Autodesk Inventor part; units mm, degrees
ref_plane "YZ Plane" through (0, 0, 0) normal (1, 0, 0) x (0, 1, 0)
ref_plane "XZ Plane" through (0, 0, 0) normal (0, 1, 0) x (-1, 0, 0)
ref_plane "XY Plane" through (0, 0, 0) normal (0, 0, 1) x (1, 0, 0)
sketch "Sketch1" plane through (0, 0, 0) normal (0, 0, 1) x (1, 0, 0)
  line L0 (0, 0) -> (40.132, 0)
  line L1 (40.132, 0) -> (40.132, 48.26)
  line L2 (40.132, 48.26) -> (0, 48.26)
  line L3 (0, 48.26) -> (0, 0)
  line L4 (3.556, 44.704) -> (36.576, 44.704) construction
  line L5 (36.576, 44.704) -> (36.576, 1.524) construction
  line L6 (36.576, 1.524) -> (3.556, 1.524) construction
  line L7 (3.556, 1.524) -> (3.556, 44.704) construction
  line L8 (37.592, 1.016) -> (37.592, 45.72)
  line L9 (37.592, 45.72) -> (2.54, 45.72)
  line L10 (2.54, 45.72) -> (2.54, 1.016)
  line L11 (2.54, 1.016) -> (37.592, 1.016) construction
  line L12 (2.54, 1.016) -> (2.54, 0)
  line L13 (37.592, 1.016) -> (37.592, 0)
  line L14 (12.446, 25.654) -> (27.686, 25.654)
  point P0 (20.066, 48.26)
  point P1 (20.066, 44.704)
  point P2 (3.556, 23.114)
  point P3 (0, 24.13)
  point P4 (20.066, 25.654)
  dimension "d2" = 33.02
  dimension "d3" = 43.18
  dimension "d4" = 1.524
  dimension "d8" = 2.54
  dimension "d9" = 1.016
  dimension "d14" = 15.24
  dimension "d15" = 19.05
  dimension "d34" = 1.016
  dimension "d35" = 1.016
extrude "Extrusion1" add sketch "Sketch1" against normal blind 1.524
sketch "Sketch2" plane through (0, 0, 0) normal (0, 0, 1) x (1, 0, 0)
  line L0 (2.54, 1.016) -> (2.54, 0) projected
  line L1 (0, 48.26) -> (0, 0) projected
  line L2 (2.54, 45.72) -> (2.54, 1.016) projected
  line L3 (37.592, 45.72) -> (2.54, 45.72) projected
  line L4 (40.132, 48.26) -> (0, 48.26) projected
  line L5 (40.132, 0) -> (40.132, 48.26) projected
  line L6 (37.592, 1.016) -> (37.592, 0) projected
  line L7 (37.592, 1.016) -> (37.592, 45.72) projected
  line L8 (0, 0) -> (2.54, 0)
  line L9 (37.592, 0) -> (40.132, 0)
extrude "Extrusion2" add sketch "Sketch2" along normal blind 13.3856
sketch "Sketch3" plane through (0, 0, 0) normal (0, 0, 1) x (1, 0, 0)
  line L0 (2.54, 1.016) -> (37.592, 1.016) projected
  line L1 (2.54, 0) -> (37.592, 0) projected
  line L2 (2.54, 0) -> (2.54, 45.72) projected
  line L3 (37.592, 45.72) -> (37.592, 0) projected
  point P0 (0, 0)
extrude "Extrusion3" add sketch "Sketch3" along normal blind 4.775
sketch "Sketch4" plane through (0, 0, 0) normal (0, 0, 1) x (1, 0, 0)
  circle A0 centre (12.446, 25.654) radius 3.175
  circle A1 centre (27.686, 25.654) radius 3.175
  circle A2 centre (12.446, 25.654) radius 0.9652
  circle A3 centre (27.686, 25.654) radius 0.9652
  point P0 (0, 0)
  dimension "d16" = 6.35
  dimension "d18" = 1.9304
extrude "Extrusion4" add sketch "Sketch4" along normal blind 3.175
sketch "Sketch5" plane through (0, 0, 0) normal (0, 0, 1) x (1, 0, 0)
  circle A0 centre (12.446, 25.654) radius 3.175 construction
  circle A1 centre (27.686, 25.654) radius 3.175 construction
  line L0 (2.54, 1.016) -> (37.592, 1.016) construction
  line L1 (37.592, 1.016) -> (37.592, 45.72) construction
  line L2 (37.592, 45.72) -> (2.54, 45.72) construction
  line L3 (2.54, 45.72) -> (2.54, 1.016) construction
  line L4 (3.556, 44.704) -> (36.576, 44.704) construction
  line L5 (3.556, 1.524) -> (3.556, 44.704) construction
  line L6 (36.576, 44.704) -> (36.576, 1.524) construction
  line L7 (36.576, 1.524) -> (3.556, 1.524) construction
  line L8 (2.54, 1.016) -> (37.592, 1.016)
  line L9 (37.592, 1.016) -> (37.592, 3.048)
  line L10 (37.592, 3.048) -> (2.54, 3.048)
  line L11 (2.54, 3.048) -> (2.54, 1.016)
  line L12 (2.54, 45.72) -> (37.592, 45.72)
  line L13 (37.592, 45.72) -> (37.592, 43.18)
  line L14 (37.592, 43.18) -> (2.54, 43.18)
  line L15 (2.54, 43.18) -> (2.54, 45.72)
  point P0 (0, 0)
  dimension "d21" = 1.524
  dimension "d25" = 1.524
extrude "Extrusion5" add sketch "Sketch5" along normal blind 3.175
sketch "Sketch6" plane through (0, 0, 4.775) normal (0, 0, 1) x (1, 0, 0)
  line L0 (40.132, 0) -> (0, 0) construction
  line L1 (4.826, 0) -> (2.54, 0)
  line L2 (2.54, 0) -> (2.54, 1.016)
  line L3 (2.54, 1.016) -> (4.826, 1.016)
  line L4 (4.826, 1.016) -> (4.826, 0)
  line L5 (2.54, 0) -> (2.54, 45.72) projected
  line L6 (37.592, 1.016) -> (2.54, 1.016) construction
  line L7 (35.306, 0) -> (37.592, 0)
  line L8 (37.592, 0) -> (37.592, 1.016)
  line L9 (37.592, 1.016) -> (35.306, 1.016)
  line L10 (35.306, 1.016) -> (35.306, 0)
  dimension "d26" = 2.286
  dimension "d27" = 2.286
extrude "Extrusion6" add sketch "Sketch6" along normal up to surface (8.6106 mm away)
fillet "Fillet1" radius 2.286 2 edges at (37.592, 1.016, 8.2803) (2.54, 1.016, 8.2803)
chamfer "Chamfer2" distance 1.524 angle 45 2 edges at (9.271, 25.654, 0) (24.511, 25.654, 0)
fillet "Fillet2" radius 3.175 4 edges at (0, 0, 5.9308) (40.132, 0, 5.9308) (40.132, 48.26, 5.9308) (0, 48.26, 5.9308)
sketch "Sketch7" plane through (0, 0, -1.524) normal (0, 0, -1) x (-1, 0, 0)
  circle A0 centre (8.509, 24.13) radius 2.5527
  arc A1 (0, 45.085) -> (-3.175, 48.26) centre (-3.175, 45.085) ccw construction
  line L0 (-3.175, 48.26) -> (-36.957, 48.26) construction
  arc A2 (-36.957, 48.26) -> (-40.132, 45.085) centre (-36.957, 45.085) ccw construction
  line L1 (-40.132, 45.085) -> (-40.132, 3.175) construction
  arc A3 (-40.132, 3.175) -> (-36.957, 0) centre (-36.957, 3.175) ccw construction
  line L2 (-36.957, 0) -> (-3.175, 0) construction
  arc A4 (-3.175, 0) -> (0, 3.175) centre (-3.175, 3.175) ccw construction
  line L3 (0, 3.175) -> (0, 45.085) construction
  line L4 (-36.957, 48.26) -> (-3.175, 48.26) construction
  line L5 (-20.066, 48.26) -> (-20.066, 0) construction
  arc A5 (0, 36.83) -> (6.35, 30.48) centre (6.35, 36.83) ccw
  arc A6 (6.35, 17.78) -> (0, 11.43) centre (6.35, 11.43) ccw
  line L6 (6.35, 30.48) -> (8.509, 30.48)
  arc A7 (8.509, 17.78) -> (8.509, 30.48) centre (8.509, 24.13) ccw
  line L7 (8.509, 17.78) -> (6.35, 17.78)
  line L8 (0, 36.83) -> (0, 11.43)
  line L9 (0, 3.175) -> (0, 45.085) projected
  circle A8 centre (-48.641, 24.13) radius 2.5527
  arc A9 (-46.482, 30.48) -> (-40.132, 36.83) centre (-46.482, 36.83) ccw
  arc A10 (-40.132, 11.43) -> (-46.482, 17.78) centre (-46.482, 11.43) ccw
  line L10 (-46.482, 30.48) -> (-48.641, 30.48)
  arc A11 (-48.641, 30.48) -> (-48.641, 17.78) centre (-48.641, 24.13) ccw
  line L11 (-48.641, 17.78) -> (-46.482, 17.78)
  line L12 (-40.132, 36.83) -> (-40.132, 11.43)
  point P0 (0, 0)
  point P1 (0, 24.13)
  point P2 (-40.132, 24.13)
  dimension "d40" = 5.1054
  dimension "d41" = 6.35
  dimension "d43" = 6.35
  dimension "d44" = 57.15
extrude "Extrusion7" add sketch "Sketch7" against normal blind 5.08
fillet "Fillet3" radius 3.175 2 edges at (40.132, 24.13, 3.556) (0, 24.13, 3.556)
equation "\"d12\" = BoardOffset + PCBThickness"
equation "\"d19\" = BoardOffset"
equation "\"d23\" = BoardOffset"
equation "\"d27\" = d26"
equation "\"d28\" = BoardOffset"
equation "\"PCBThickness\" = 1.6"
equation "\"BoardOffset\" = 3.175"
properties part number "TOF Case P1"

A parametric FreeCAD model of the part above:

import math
import FreeCAD as App
import Part
import Sketcher

V = App.Vector
Q = App.Units.Quantity


def edges_at(feature, points):
    """Names of the edges that pass closest to the given points."""
    edges = feature.Shape.Edges
    near = lambda p: min(range(len(edges)), key=lambda i: edges[i].distToShape(Part.Vertex(*p))[0])
    return sorted({f"Edge{near(p) + 1}" for p in points})


def add_polygon(sketch, points):
    """Adds a closed chain of lines whose ends are joined by coincident constraints."""
    first, n = sketch.GeometryCount, len(points)
    for a, b in zip(points, points[1:] + points[:1]):
        sketch.addGeometry(Part.LineSegment(App.Vector(*a, 0), App.Vector(*b, 0)), False)
    for i in range(n):
        sketch.addConstraint(Sketcher.Constraint("Coincident", first + i, 2, first + (i + 1) % n, 1))

doc = App.newDocument("Part")
params = doc.addObject("Spreadsheet::Sheet", "Params")
for row, (alias, value) in enumerate([
    ("sketch1_height", "1.9 in"),
    ("sketch1_width", "1.58 in"),
    ("pad1_length", "0.06 in"),
    ("sketch2_width", "0.1 in"),
    ("sketch2_height", "1.8 in"),
    ("sketch2_height2", "1.9 in"),
    ("sketch2_width2", "1.38 in"),
    ("pad2_length", "0.5269921 in"),
    ("sketch3_width", "1.38 in"),
    ("sketch3_height", "0.04 in"),
    ("pad3_length", "0.1879921 in"),
    ("sketch4_diameter", "0.25 in"),
    ("sketch4_diameter2", "0.076 in"),
    ("pad4_length", "0.125 in"),
    ("sketch5_height", "0.1 in"),
    ("sketch5_width", "1.38 in"),
    ("sketch5_height2", "0.08 in"),
    ("pad5_length", "0.125 in"),
    ("sketch6_width", "0.09 in"),
    ("sketch6_height", "0.04 in"),
    ("pad6_length", "0.339 in"),
    ("fillet_radius", "0.09 in"),
    ("chamfer_size", "0.06 in"),
    ("fillet2_radius", "0.125 in"),
    ("sketch7_radius", "0.25 in"),
    ("sketch7_diameter", "0.201 in"),
    ("sketch7_width", "0.085 in"),
    ("pad7_length", "0.2 in"),
    ("fillet3_radius", "0.125 in"),
], start=1):
    params.set(f"A{row}", alias)
    params.set(f"B{row}", "=" + value)
    params.setAlias(f"B{row}", alias)

body = doc.addObject("PartDesign::Body", "Body")

# Sketch on XY plane
sketch1 = body.newObject("Sketcher::SketchObject", "Sketch")
sketch1.AttachmentSupport = (doc.getObject("XY_Plane"), [""])
sketch1.MapMode = "FlatFace"
add_polygon(sketch1, [(0, 48), (0, 0), (40, 0), (40, 48)])  # lines 0-3
sketch1.addConstraint(Sketcher.Constraint("Vertical", 0))
sketch1.addConstraint(Sketcher.Constraint("Horizontal", 1))
sketch1.addConstraint(Sketcher.Constraint("Vertical", 2))
sketch1.addConstraint(Sketcher.Constraint("Horizontal", 3))
sketch1.addConstraint(Sketcher.Constraint("Coincident", 0, 2, -1, 1))
sketch1.addConstraint(Sketcher.Constraint("DistanceY", 0, 2, 0, 1, Q("1.9 in")))
sketch1.addConstraint(Sketcher.Constraint("DistanceX", 1, 1, 1, 2, Q("1.58 in")))
sketch1.setExpression("Constraints[9]", "Params.sketch1_height")
sketch1.setExpression("Constraints[10]", "Params.sketch1_width")
pad1 = body.newObject("PartDesign::Pad", "Pad")
pad1.Profile = sketch1
pad1.setExpression("Length", "Params.pad1_length")
pad1.Reversed = True

# Sketch on XY plane
sketch2 = body.newObject("Sketcher::SketchObject", "Sketch001")
sketch2.AttachmentSupport = (doc.getObject("XY_Plane"), [""])
sketch2.MapMode = "FlatFace"
add_polygon(sketch2, [(2.5, 0), (2.5, 45.7), (37.6, 45.7), (37.6, 0), (40.1, 0), (40.1, 48.3), (0, 48.3), (0, 0)])  # lines 0-7
sketch2.addConstraint(Sketcher.Constraint("Vertical", 0))
sketch2.addConstraint(Sketcher.Constraint("Horizontal", 1))
sketch2.addConstraint(Sketcher.Constraint("Vertical", 2))
sketch2.addConstraint(Sketcher.Constraint("Horizontal", 3))
sketch2.addConstraint(Sketcher.Constraint("Vertical", 4))
sketch2.addConstraint(Sketcher.Constraint("Horizontal", 5))
sketch2.addConstraint(Sketcher.Constraint("Vertical", 6))
sketch2.addConstraint(Sketcher.Constraint("Horizontal", 7))
sketch2.addConstraint(Sketcher.Constraint("Coincident", 6, 2, -1, 1))
sketch2.addConstraint(Sketcher.Constraint("PointOnObject", 2, 2, -1))
sketch2.addConstraint(Sketcher.Constraint("Equal", 3, 7))
sketch2.addConstraint(Sketcher.Constraint("DistanceX", 3, 1, 3, 2, Q("0.1 in")))
sketch2.addConstraint(Sketcher.Constraint("DistanceY", 0, 1, 0, 2, Q("1.8 in")))
sketch2.addConstraint(Sketcher.Constraint("DistanceY", 4, 1, 4, 2, Q("1.9 in")))
sketch2.addConstraint(Sketcher.Constraint("DistanceX", 1, 1, 1, 2, Q("1.38 in")))
sketch2.setExpression("Constraints[19]", "Params.sketch2_width")
sketch2.setExpression("Constraints[20]", "Params.sketch2_height")
sketch2.setExpression("Constraints[21]", "Params.sketch2_height2")
sketch2.setExpression("Constraints[22]", "Params.sketch2_width2")
pad2 = body.newObject("PartDesign::Pad", "Pad001")
pad2.Profile = sketch2
pad2.setExpression("Length", "Params.pad2_length")

# Sketch on XY plane
sketch3 = body.newObject("Sketcher::SketchObject", "Sketch002")
sketch3.AttachmentSupport = (doc.getObject("XY_Plane"), [""])
sketch3.MapMode = "FlatFace"
add_polygon(sketch3, [(37.6, 1), (2.5, 1), (2.5, 0), (37.6, 0)])  # lines 0-3
sketch3.addConstraint(Sketcher.Constraint("Horizontal", 0))
sketch3.addConstraint(Sketcher.Constraint("Vertical", 1))
sketch3.addConstraint(Sketcher.Constraint("Horizontal", 2))
sketch3.addConstraint(Sketcher.Constraint("Vertical", 3))
sketch3.addConstraint(Sketcher.Constraint("PointOnObject", 1, 2, -1))
sketch3.addConstraint(Sketcher.Constraint("DistanceX", 0, 2, 0, 1, Q("1.38 in")))
sketch3.addConstraint(Sketcher.Constraint("DistanceY", 1, 2, 1, 1, Q("0.04 in")))
sketch3.addConstraint(Sketcher.Constraint("DistanceX", -1, 1, 0, 2, Q("0.1 in")))
sketch3.setExpression("Constraints[9]", "Params.sketch3_width")
sketch3.setExpression("Constraints[10]", "Params.sketch3_height")
pad3 = body.newObject("PartDesign::Pad", "Pad002")
pad3.Profile = sketch3
pad3.setExpression("Length", "Params.pad3_length")

# Sketch on XY plane
sketch4 = body.newObject("Sketcher::SketchObject", "Sketch003")
sketch4.AttachmentSupport = (doc.getObject("XY_Plane"), [""])
sketch4.MapMode = "FlatFace"
sketch4.addGeometry(Part.Circle(V(12.4, 25.7, 0), V(0, 0, 1), 3.2), False)
sketch4.addGeometry(Part.Circle(V(12.4, 25.7, 0), V(0, 0, 1), 1), False)
sketch4.addGeometry(Part.Circle(V(27.7, 25.7, 0), V(0, 0, 1), 3.2), False)
sketch4.addGeometry(Part.Circle(V(27.7, 25.7, 0), V(0, 0, 1), 1), False)
sketch4.addConstraint(Sketcher.Constraint("Coincident", 1, 3, 0, 3))
sketch4.addConstraint(Sketcher.Constraint("Coincident", 3, 3, 2, 3))
sketch4.addConstraint(Sketcher.Constraint("Equal", 0, 2))
sketch4.addConstraint(Sketcher.Constraint("Equal", 1, 3))
sketch4.addConstraint(Sketcher.Constraint("Horizontal", 1, 3, 2, 3))
sketch4.addConstraint(Sketcher.Constraint("Diameter", 0, Q("0.25 in")))
sketch4.addConstraint(Sketcher.Constraint("Diameter", 1, Q("0.076 in")))
sketch4.addConstraint(Sketcher.Constraint("DistanceX", 0, 3, 2, 3, Q("0.6 in")))
sketch4.addConstraint(Sketcher.Constraint("DistanceX", -1, 1, 0, 3, Q("0.49 in")))
sketch4.addConstraint(Sketcher.Constraint("DistanceY", -1, 1, 0, 3, Q("1.01 in")))
sketch4.setExpression("Constraints[5]", "Params.sketch4_diameter")
sketch4.setExpression("Constraints[6]", "Params.sketch4_diameter2")
pad4 = body.newObject("PartDesign::Pad", "Pad003")
pad4.Profile = sketch4
pad4.setExpression("Length", "Params.pad4_length")

# Sketch on XY plane
sketch5 = body.newObject("Sketcher::SketchObject", "Sketch004")
sketch5.AttachmentSupport = (doc.getObject("XY_Plane"), [""])
sketch5.MapMode = "FlatFace"
add_polygon(sketch5, [(2.5, 3), (2.5, 1), (37.6, 1), (37.6, 3)])  # lines 0-3
add_polygon(sketch5, [(37.6, 45.7), (2.5, 45.7), (2.5, 43.2), (37.6, 43.2)])  # lines 4-7
sketch5.addConstraint(Sketcher.Constraint("Vertical", 0))
sketch5.addConstraint(Sketcher.Constraint("Horizontal", 1))
sketch5.addConstraint(Sketcher.Constraint("Vertical", 2))
sketch5.addConstraint(Sketcher.Constraint("Horizontal", 3))
sketch5.addConstraint(Sketcher.Constraint("Horizontal", 4))
sketch5.addConstraint(Sketcher.Constraint("Vertical", 5))
sketch5.addConstraint(Sketcher.Constraint("Horizontal", 6))
sketch5.addConstraint(Sketcher.Constraint("Vertical", 7))
sketch5.addConstraint(Sketcher.Constraint("Vertical", 3, 2, 4, 2))
sketch5.addConstraint(Sketcher.Constraint("Vertical", 2, 2, 6, 2))
sketch5.addConstraint(Sketcher.Constraint("DistanceY", 5, 2, 5, 1, Q("0.1 in")))
sketch5.addConstraint(Sketcher.Constraint("DistanceX", 1, 1, 1, 2, Q("1.38 in")))
sketch5.addConstraint(Sketcher.Constraint("DistanceY", 0, 2, 0, 1, Q("0.08 in")))
sketch5.addConstraint(Sketcher.Constraint("DistanceX", -1, 1, 0, 2, Q("0.1 in")))
sketch5.addConstraint(Sketcher.Constraint("DistanceY", -1, 1, 4, 2, Q("1.8 in")))
sketch5.addConstraint(Sketcher.Constraint("DistanceY", -1, 1, 0, 2, Q("0.04 in")))
sketch5.setExpression("Constraints[18]", "Params.sketch5_height")
sketch5.setExpression("Constraints[19]", "Params.sketch5_width")
sketch5.setExpression("Constraints[20]", "Params.sketch5_height2")
pad5 = body.newObject("PartDesign::Pad", "Pad004")
pad5.Profile = sketch5
pad5.setExpression("Length", "Params.pad5_length")

# Sketch on XY plane
sketch6 = body.newObject("Sketcher::SketchObject", "Sketch005")
sketch6.AttachmentSupport = (doc.getObject("XY_Plane"), [""])
sketch6.MapMode = "FlatFace"
sketch6.AttachmentOffset = App.Placement(V(0, 0, 0.1879921 * 25.4), App.Rotation())
add_polygon(sketch6, [(2.5, 0), (4.8, 0), (4.8, 1), (2.5, 1)])  # lines 0-3
add_polygon(sketch6, [(35.3, 1), (35.3, 0), (37.6, 0), (37.6, 1)])  # lines 4-7
sketch6.addConstraint(Sketcher.Constraint("Horizontal", 0))
sketch6.addConstraint(Sketcher.Constraint("Vertical", 1))
sketch6.addConstraint(Sketcher.Constraint("Horizontal", 2))
sketch6.addConstraint(Sketcher.Constraint("Vertical", 3))
sketch6.addConstraint(Sketcher.Constraint("Vertical", 4))
sketch6.addConstraint(Sketcher.Constraint("Horizontal", 5))
sketch6.addConstraint(Sketcher.Constraint("Vertical", 6))
sketch6.addConstraint(Sketcher.Constraint("Horizontal", 7))
sketch6.addConstraint(Sketcher.Constraint("PointOnObject", 0, 2, -1))
sketch6.addConstraint(Sketcher.Constraint("PointOnObject", 4, 2, -1))
sketch6.addConstraint(Sketcher.Constraint("Horizontal", 2, 2, 6, 2))
sketch6.addConstraint(Sketcher.Constraint("Equal", 2, 5))
sketch6.addConstraint(Sketcher.Constraint("DistanceX", 0, 1, 0, 2, Q("0.09 in")))
sketch6.addConstraint(Sketcher.Constraint("DistanceY", 1, 1, 1, 2, Q("0.04 in")))
sketch6.addConstraint(Sketcher.Constraint("DistanceX", -1, 1, 2, 2, Q("0.1 in")))
sketch6.addConstraint(Sketcher.Constraint("DistanceX", 0, 2, 4, 2, Q("1.2 in")))
sketch6.setExpression("Constraints[20]", "Params.sketch6_width")
sketch6.setExpression("Constraints[21]", "Params.sketch6_height")
pad6 = body.newObject("PartDesign::Pad", "Pad005")
pad6.Profile = sketch6
pad6.setExpression("Length", "Params.pad6_length")
doc.recompute()

fillet = body.newObject("PartDesign::Fillet", "Fillet")
fillet.Base = (pad6, edges_at(pad6, [(37.592, 1.016, 8.28), (2.54, 1.016, 8.28)]))
fillet.setExpression("Radius", "Params.fillet_radius")
doc.recompute()

chamfer = body.newObject("PartDesign::Chamfer", "Chamfer")
chamfer.Base = (fillet, edges_at(fillet, [(9.271, 25.654, 0), (24.511, 25.654, 0)]))
chamfer.setExpression("Size", "Params.chamfer_size")
doc.recompute()

fillet2 = body.newObject("PartDesign::Fillet", "Fillet001")
fillet2.Base = (chamfer, edges_at(chamfer, [
    (0, 0, 5.931),
    (40.132, 0, 5.931),
    (40.132, 48.26, 5.931),
    (0, 48.26, 5.931),
]))
fillet2.setExpression("Radius", "Params.fillet2_radius")

# Sketch on XY plane
sketch7 = body.newObject("Sketcher::SketchObject", "Sketch006")
sketch7.AttachmentSupport = (doc.getObject("XY_Plane"), [""])
sketch7.MapMode = "FlatFace"
sketch7.AttachmentOffset = App.Placement(V(0, 0, -0.06 * 25.4), App.Rotation())
sketch7.addGeometry(Part.ArcOfCircle(Part.Circle(V(-6.3, 36.8, 0), V(0, 0, 1), 6.3), math.radians(-90), math.radians(0)), False)
sketch7.addGeometry(Part.LineSegment(V(0, 36.8, 0), V(0, 11.4, 0)), False)
sketch7.addGeometry(Part.ArcOfCircle(Part.Circle(V(-6.3, 11.4, 0), V(0, 0, 1), 6.4), math.radians(0), math.radians(90)), False)
sketch7.addGeometry(Part.LineSegment(V(-6.3, 17.8, 0), V(-8.5, 17.8, 0)), False)
sketch7.addGeometry(Part.ArcOfCircle(Part.Circle(V(-8.5, 24.1, 0), V(0, 0, 1), 6.3), math.radians(90), math.radians(270)), False)
sketch7.addGeometry(Part.LineSegment(V(-8.5, 30.5, 0), V(-6.3, 30.5, 0)), False)
sketch7.addGeometry(Part.Circle(V(-8.5, 24.1, 0), V(0, 0, 1), 2.6), False)
sketch7.addGeometry(Part.ArcOfCircle(Part.Circle(V(46.5, 36.8, 0), V(0, 0, 1), 6.3), math.radians(180), math.radians(270)), False)
sketch7.addGeometry(Part.LineSegment(V(46.5, 30.5, 0), V(48.6, 30.5, 0)), False)
sketch7.addGeometry(Part.ArcOfCircle(Part.Circle(V(48.6, 24.1, 0), V(0, 0, 1), 6.4), math.radians(-90), math.radians(90)), False)
sketch7.addGeometry(Part.LineSegment(V(48.6, 17.8, 0), V(46.5, 17.8, 0)), False)
sketch7.addGeometry(Part.ArcOfCircle(Part.Circle(V(46.5, 11.4, 0), V(0, 0, 1), 6.4), math.radians(90), math.radians(180)), False)
sketch7.addGeometry(Part.LineSegment(V(40.1, 11.4, 0), V(40.1, 36.8, 0)), False)
sketch7.addGeometry(Part.Circle(V(48.6, 24.1, 0), V(0, 0, 1), 2.6), False)
sketch7.addConstraint(Sketcher.Constraint("Tangent", 0, 2, 1, 1))
sketch7.addConstraint(Sketcher.Constraint("Tangent", 1, 2, 2, 1))
sketch7.addConstraint(Sketcher.Constraint("Tangent", 2, 2, 3, 1))
sketch7.addConstraint(Sketcher.Constraint("Tangent", 3, 2, 4, 2))
sketch7.addConstraint(Sketcher.Constraint("Tangent", 4, 1, 5, 1))
sketch7.addConstraint(Sketcher.Constraint("Tangent", 5, 2, 0, 1))
sketch7.addConstraint(Sketcher.Constraint("Tangent", 7, 2, 8, 1))
sketch7.addConstraint(Sketcher.Constraint("Tangent", 8, 2, 9, 2))
sketch7.addConstraint(Sketcher.Constraint("Tangent", 9, 1, 10, 1))
sketch7.addConstraint(Sketcher.Constraint("Tangent", 10, 2, 11, 1))
sketch7.addConstraint(Sketcher.Constraint("Tangent", 11, 2, 12, 1))
sketch7.addConstraint(Sketcher.Constraint("Tangent", 12, 2, 7, 1))
sketch7.addConstraint(Sketcher.Constraint("Vertical", 1))
sketch7.addConstraint(Sketcher.Constraint("Horizontal", 3))
sketch7.addConstraint(Sketcher.Constraint("Horizontal", 5))
sketch7.addConstraint(Sketcher.Constraint("Horizontal", 8))
sketch7.addConstraint(Sketcher.Constraint("Horizontal", 10))
sketch7.addConstraint(Sketcher.Constraint("Vertical", 12))
sketch7.addConstraint(Sketcher.Constraint("Coincident", 6, 3, 4, 3))
sketch7.addConstraint(Sketcher.Constraint("Coincident", 13, 3, 9, 3))
sketch7.addConstraint(Sketcher.Constraint("Equal", 0, 2))
sketch7.addConstraint(Sketcher.Constraint("Equal", 2, 4))
sketch7.addConstraint(Sketcher.Constraint("Equal", 4, 7))
sketch7.addConstraint(Sketcher.Constraint("Equal", 7, 9))
sketch7.addConstraint(Sketcher.Constraint("Equal", 9, 11))
sketch7.addConstraint(Sketcher.Constraint("Equal", 6, 13))
sketch7.addConstraint(Sketcher.Constraint("PointOnObject", 0, 2, -2))
sketch7.addConstraint(Sketcher.Constraint("Horizontal", 0, 3, 7, 3))
sketch7.addConstraint(Sketcher.Constraint("Equal", 5, 8))
sketch7.addConstraint(Sketcher.Constraint("Radius", 0, Q("0.25 in")))
sketch7.addConstraint(Sketcher.Constraint("Diameter", 6, Q("0.201 in")))
sketch7.addConstraint(Sketcher.Constraint("DistanceX", 4, 3, 9, 3, Q("2.25 in")))
sketch7.addConstraint(Sketcher.Constraint("DistanceY", -1, 1, 2, 2, Q("0.7 in")))
sketch7.addConstraint(Sketcher.Constraint("DistanceX", 3, 2, 3, 1, Q("0.085 in")))
sketch7.setExpression("Constraints[29]", "Params.sketch7_radius")
sketch7.setExpression("Constraints[30]", "Params.sketch7_diameter")
sketch7.setExpression("Constraints[33]", "Params.sketch7_width")
pad7 = body.newObject("PartDesign::Pad", "Pad006")
pad7.Profile = sketch7
pad7.setExpression("Length", "Params.pad7_length")
doc.recompute()

fillet3 = body.newObject("PartDesign::Fillet", "Fillet002")
fillet3.Base = (pad7, edges_at(pad7, [(40.132, 24.13, 3.556), (0, 24.13, 3.556)]))
fillet3.setExpression("Radius", "Params.fillet3_radius")

doc.recompute()
